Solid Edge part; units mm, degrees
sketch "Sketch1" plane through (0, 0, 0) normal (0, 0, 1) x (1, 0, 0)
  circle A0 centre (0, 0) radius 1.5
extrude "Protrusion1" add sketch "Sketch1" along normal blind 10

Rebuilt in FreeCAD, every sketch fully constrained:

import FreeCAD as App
import Part
import Sketcher
from FreeCAD import Vector
Q = App.Units.Quantity

doc = App.newDocument("Part")
params = doc.addObject("Spreadsheet::Sheet", "Params")
for row, (alias, value) in enumerate([
    ("sketch1_diameter", "3 mm"),
    ("pad1_length", "10 mm"),
], start=1):
    params.set(f"A{row}", alias)
    params.set(f"B{row}", "=" + value)
    params.setAlias(f"B{row}", alias)

body = doc.addObject("PartDesign::Body", "Body")

# Sketch on XY plane
sketch1 = body.newObject("Sketcher::SketchObject", "Sketch")
sketch1.AttachmentSupport = (doc.getObject("XY_Plane"), [""])
sketch1.MapMode = "FlatFace"
sketch1.addGeometry(Part.Circle(Vector(0, 0, 0), Vector(0, 0, 1), 1.5), False)
sketch1.addConstraint([
    Sketcher.Constraint("Coincident", 0, 3, -1, 1),
    Sketcher.Constraint("Diameter", 0, Q("3 mm")),
])
sketch1.setExpression("Constraints[1]", "Params.sketch1_diameter")
pad1 = body.newObject("PartDesign::Pad", "Pad")
pad1.Profile = sketch1
pad1.setExpression("Length", "Params.pad1_length")

doc.recompute()
